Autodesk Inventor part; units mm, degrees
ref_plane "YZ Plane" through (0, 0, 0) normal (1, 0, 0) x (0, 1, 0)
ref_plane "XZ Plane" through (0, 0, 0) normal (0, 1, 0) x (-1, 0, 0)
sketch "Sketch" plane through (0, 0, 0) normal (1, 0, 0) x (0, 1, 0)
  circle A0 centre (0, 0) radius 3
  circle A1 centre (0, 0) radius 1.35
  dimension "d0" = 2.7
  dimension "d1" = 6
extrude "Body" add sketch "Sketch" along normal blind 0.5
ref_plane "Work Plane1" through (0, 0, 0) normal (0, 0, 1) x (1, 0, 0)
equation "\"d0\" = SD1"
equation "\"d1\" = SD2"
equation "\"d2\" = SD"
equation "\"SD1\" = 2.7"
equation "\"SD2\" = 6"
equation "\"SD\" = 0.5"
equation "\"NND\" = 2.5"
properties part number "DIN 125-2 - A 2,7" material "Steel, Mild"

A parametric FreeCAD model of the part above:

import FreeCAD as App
import Part
import Sketcher
from FreeCAD import Vector
Q = App.Units.Quantity

doc = App.newDocument("Part")
params = doc.addObject("Spreadsheet::Sheet", "Params")
for row, (alias, value) in enumerate([
    ("sketch1_diameter", "6 mm"),
    ("sketch1_diameter2", "2.7 mm"),
    ("pad1_length", "0.5 mm"),
], start=1):
    params.set(f"A{row}", alias)
    params.set(f"B{row}", "=" + value)
    params.setAlias(f"B{row}", alias)

body = doc.addObject("PartDesign::Body", "Body")

# Sketch on YZ plane
sketch1 = body.newObject("Sketcher::SketchObject", "Sketch")
sketch1.AttachmentSupport = (doc.getObject("YZ_Plane"), [""])
sketch1.MapMode = "FlatFace"
sketch1.addGeometry(Part.Circle(Vector(0, 0, 0), Vector(0, 0, 1), 3), False)
sketch1.addGeometry(Part.Circle(Vector(0, 0, 0), Vector(0, 0, 1), 1.35), False)
sketch1.addConstraint(Sketcher.Constraint("Coincident", 0, 3, -1, 1))
sketch1.addConstraint(Sketcher.Constraint("Coincident", 1, 3, -1, 1))
sketch1.addConstraint(Sketcher.Constraint("Diameter", 0, Q("6 mm")))
sketch1.addConstraint(Sketcher.Constraint("Diameter", 1, Q("2.7 mm")))
sketch1.setExpression("Constraints[2]", "Params.sketch1_diameter")
sketch1.setExpression("Constraints[3]", "Params.sketch1_diameter2")
pad1 = body.newObject("PartDesign::Pad", "Pad")
pad1.Profile = sketch1
pad1.setExpression("Length", "Params.pad1_length")

doc.recompute()
